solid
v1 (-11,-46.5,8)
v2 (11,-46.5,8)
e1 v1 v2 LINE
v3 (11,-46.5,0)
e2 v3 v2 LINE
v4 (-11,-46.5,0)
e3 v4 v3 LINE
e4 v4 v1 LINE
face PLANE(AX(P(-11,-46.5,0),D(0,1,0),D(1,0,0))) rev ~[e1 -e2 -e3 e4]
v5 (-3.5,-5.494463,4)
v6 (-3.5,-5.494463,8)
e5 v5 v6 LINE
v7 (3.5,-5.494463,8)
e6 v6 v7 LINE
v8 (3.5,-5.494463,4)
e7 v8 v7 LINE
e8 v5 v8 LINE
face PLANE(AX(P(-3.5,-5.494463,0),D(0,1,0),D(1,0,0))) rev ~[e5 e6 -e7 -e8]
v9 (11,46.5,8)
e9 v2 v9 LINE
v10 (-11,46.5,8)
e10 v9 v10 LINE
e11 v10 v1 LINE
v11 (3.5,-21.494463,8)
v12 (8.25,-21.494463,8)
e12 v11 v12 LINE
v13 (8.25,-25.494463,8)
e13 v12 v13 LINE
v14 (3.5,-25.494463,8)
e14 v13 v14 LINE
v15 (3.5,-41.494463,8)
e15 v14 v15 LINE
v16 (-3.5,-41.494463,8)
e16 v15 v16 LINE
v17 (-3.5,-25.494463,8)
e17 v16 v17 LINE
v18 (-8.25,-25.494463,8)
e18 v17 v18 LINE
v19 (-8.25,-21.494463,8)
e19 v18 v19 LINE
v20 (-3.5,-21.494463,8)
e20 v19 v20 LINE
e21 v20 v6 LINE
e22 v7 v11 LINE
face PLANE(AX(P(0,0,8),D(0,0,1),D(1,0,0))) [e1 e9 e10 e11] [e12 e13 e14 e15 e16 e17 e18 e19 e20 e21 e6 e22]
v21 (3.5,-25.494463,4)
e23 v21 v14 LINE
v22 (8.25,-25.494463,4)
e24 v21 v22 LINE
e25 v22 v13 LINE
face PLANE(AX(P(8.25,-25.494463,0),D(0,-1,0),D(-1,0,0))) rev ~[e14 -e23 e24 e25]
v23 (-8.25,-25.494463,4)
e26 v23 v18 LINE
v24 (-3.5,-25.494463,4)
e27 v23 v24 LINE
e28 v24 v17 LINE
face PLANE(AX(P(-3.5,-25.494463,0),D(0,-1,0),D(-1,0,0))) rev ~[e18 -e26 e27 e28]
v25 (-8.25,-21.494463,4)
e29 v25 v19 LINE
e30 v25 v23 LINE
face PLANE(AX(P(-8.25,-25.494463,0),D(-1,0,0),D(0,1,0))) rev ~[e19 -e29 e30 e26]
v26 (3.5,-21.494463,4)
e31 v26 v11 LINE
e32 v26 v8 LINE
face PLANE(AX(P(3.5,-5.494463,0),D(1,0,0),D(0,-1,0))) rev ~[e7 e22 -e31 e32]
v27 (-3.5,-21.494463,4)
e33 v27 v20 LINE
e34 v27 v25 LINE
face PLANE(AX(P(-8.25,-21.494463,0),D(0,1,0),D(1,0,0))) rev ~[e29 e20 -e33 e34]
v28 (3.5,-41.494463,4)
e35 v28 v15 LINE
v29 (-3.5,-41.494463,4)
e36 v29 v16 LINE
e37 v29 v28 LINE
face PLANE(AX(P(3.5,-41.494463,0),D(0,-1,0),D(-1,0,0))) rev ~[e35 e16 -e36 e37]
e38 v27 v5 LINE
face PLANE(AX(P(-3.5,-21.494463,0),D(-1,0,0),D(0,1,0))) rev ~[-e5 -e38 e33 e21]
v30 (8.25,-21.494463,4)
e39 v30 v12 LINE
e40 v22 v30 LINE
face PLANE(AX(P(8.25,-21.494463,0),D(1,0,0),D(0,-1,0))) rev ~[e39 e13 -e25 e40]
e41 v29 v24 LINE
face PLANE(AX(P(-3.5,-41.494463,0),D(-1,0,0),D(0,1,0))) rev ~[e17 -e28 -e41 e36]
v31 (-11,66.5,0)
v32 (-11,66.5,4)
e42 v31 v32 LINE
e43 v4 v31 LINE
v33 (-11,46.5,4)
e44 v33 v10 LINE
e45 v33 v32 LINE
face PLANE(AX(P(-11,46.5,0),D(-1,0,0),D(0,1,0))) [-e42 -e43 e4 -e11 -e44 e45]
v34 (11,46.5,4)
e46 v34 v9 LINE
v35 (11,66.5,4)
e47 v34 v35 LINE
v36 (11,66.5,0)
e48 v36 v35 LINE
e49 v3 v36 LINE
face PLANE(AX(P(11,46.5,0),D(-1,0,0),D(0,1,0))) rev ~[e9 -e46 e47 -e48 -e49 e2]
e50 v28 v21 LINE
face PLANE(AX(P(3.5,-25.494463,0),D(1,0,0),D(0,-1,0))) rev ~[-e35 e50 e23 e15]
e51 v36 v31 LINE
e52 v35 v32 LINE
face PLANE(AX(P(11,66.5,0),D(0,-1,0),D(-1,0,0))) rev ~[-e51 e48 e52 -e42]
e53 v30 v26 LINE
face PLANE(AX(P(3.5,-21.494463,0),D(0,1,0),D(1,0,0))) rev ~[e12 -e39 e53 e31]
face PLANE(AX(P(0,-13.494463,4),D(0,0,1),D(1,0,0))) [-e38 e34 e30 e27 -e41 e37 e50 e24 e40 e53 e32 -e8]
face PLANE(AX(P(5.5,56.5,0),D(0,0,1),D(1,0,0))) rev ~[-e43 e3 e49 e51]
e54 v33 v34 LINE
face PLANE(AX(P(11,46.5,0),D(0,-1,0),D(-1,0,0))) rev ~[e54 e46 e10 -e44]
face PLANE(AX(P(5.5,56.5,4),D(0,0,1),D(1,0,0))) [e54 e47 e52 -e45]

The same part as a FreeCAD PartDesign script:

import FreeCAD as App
import Part
import Sketcher
from FreeCAD import Vector

doc = App.newDocument("Part")
body = doc.addObject("PartDesign::Body", "Body")

# Sketch on XY plane
sketch1 = body.newObject("Sketcher::SketchObject", "Sketch")
sketch1.AttachmentSupport = (doc.getObject("XY_Plane"), [""])
sketch1.MapMode = "FlatFace"
sketch1.addGeometry([
    Part.LineSegment(Vector(11, -46.5, 0), Vector(11, 46.5, 0)),  # 0
    Part.LineSegment(Vector(11, 46.5, 0), Vector(-11, 46.5, 0)),  # 1
    Part.LineSegment(Vector(-11, 46.5, 0), Vector(-11, -46.5, 0)),  # 2
    Part.LineSegment(Vector(-11, -46.5, 0), Vector(11, -46.5, 0)),  # 3
    Part.LineSegment(Vector(3.5, -21.5, 0), Vector(8.2, -21.5, 0)),  # 4
    Part.LineSegment(Vector(8.2, -21.5, 0), Vector(8.2, -25.5, 0)),  # 5
    Part.LineSegment(Vector(8.2, -25.5, 0), Vector(3.5, -25.5, 0)),  # 6
    Part.LineSegment(Vector(3.5, -25.5, 0), Vector(3.5, -41.5, 0)),  # 7
    Part.LineSegment(Vector(3.5, -41.5, 0), Vector(-3.5, -41.5, 0)),  # 8
    Part.LineSegment(Vector(-3.5, -41.5, 0), Vector(-3.5, -25.5, 0)),  # 9
    Part.LineSegment(Vector(-3.5, -25.5, 0), Vector(-8.2, -25.5, 0)),  # 10
    Part.LineSegment(Vector(-8.2, -25.5, 0), Vector(-8.2, -21.5, 0)),  # 11
    Part.LineSegment(Vector(-8.2, -21.5, 0), Vector(-3.5, -21.5, 0)),  # 12
    Part.LineSegment(Vector(-3.5, -21.5, 0), Vector(-3.5, -5.5, 0)),  # 13
    Part.LineSegment(Vector(-3.5, -5.5, 0), Vector(3.5, -5.5, 0)),  # 14
    Part.LineSegment(Vector(3.5, -5.5, 0), Vector(3.5, -21.5, 0)),  # 15
], False)
sketch1.addConstraint([
    Sketcher.Constraint("Coincident", 0, 2, 1, 1),
    Sketcher.Constraint("Coincident", 1, 2, 2, 1),
    Sketcher.Constraint("Coincident", 2, 2, 3, 1),
    Sketcher.Constraint("Coincident", 3, 2, 0, 1),
    Sketcher.Constraint("Coincident", 4, 2, 5, 1),
    Sketcher.Constraint("Coincident", 5, 2, 6, 1),
    Sketcher.Constraint("Coincident", 6, 2, 7, 1),
    Sketcher.Constraint("Coincident", 7, 2, 8, 1),
    Sketcher.Constraint("Coincident", 8, 2, 9, 1),
    Sketcher.Constraint("Coincident", 9, 2, 10, 1),
    Sketcher.Constraint("Coincident", 10, 2, 11, 1),
    Sketcher.Constraint("Coincident", 11, 2, 12, 1),
    Sketcher.Constraint("Coincident", 12, 2, 13, 1),
    Sketcher.Constraint("Coincident", 13, 2, 14, 1),
    Sketcher.Constraint("Coincident", 14, 2, 15, 1),
    Sketcher.Constraint("Coincident", 15, 2, 4, 1),
    Sketcher.Constraint("Vertical", 0),
    Sketcher.Constraint("Horizontal", 1),
    Sketcher.Constraint("Vertical", 2),
    Sketcher.Constraint("Horizontal", 3),
    Sketcher.Constraint("Horizontal", 4),
    Sketcher.Constraint("Vertical", 5),
    Sketcher.Constraint("Horizontal", 6),
    Sketcher.Constraint("Vertical", 7),
    Sketcher.Constraint("Horizontal", 8),
    Sketcher.Constraint("Vertical", 9),
    Sketcher.Constraint("Horizontal", 10),
    Sketcher.Constraint("Vertical", 11),
    Sketcher.Constraint("Horizontal", 12),
    Sketcher.Constraint("Vertical", 13),
    Sketcher.Constraint("Horizontal", 14),
    Sketcher.Constraint("Vertical", 15),
    Sketcher.Constraint("Symmetric", 0, 2, 2, 2, -1, 1),
    Sketcher.Constraint("Symmetric", 6, 2, 9, 2, -2),
    Sketcher.Constraint("Symmetric", 4, 2, 11, 2, -2),
    Sketcher.Constraint("Vertical", 9, 2, 12, 2),
    Sketcher.Constraint("Vertical", 7, 2, 14, 2),
    Sketcher.Constraint("Equal", 9, 13),
    Sketcher.Constraint("DistanceX", 1, 2, 1, 1, 22.0),
    Sketcher.Constraint("DistanceX", 8, 2, 8, 1, 7.0),
    Sketcher.Constraint("DistanceY", 0, 1, 0, 2, 93.0),
    Sketcher.Constraint("DistanceY", 5, 2, 5, 1, 4.0),
    Sketcher.Constraint("DistanceY", 7, 2, 7, 1, 16.0),
    Sketcher.Constraint("DistanceX", 4, 1, 4, 2, 4.75),
    Sketcher.Constraint("DistanceY", 4, 2, -1, 1, 21.494463),
])
pad1 = body.newObject("PartDesign::Pad", "Pad")
pad1.Profile = sketch1
pad1.Length = 8

# Sketch on XY plane
sketch2 = body.newObject("Sketcher::SketchObject", "Sketch001")
sketch2.AttachmentSupport = (doc.getObject("XY_Plane"), [""])
sketch2.MapMode = "FlatFace"
sketch2.addGeometry([
    Part.LineSegment(Vector(11, 46.5, 0), Vector(11, 66.5, 0)),  # 0
    Part.LineSegment(Vector(11, 66.5, 0), Vector(-11, 66.5, 0)),  # 1
    Part.LineSegment(Vector(-11, 66.5, 0), Vector(-11, 46.5, 0)),  # 2
    Part.LineSegment(Vector(-11, 46.5, 0), Vector(11, 46.5, 0)),  # 3
    Part.LineSegment(Vector(-3.5, -5.5, 0), Vector(-3.5, -21.5, 0)),  # 4
    Part.LineSegment(Vector(-3.5, -21.5, 0), Vector(-8.2, -21.5, 0)),  # 5
    Part.LineSegment(Vector(-8.2, -21.5, 0), Vector(-8.2, -25.5, 0)),  # 6
    Part.LineSegment(Vector(-8.2, -25.5, 0), Vector(-3.5, -25.5, 0)),  # 7
    Part.LineSegment(Vector(-3.5, -25.5, 0), Vector(-3.5, -41.5, 0)),  # 8
    Part.LineSegment(Vector(-3.5, -41.5, 0), Vector(3.5, -41.5, 0)),  # 9
    Part.LineSegment(Vector(3.5, -41.5, 0), Vector(3.5, -25.5, 0)),  # 10
    Part.LineSegment(Vector(3.5, -25.5, 0), Vector(8.2, -25.5, 0)),  # 11
    Part.LineSegment(Vector(8.2, -25.5, 0), Vector(8.2, -21.5, 0)),  # 12
    Part.LineSegment(Vector(8.2, -21.5, 0), Vector(3.5, -21.5, 0)),  # 13
    Part.LineSegment(Vector(3.5, -21.5, 0), Vector(3.5, -5.5, 0)),  # 14
    Part.LineSegment(Vector(3.5, -5.5, 0), Vector(-3.5, -5.5, 0)),  # 15
], False)
sketch2.addConstraint([
    Sketcher.Constraint("Coincident", 0, 2, 1, 1),
    Sketcher.Constraint("Coincident", 1, 2, 2, 1),
    Sketcher.Constraint("Coincident", 2, 2, 3, 1),
    Sketcher.Constraint("Coincident", 3, 2, 0, 1),
    Sketcher.Constraint("Coincident", 4, 2, 5, 1),
    Sketcher.Constraint("Coincident", 5, 2, 6, 1),
    Sketcher.Constraint("Coincident", 6, 2, 7, 1),
    Sketcher.Constraint("Coincident", 7, 2, 8, 1),
    Sketcher.Constraint("Coincident", 8, 2, 9, 1),
    Sketcher.Constraint("Coincident", 9, 2, 10, 1),
    Sketcher.Constraint("Coincident", 10, 2, 11, 1),
    Sketcher.Constraint("Coincident", 11, 2, 12, 1),
    Sketcher.Constraint("Coincident", 12, 2, 13, 1),
    Sketcher.Constraint("Coincident", 13, 2, 14, 1),
    Sketcher.Constraint("Coincident", 14, 2, 15, 1),
    Sketcher.Constraint("Coincident", 15, 2, 4, 1),
    Sketcher.Constraint("Vertical", 0),
    Sketcher.Constraint("Horizontal", 1),
    Sketcher.Constraint("Vertical", 2),
    Sketcher.Constraint("Horizontal", 3),
    Sketcher.Constraint("Vertical", 4),
    Sketcher.Constraint("Horizontal", 5),
    Sketcher.Constraint("Vertical", 6),
    Sketcher.Constraint("Horizontal", 7),
    Sketcher.Constraint("Vertical", 8),
    Sketcher.Constraint("Horizontal", 9),
    Sketcher.Constraint("Vertical", 10),
    Sketcher.Constraint("Horizontal", 11),
    Sketcher.Constraint("Vertical", 12),
    Sketcher.Constraint("Horizontal", 13),
    Sketcher.Constraint("Vertical", 14),
    Sketcher.Constraint("Horizontal", 15),
    Sketcher.Constraint("Symmetric", 7, 2, 10, 2, -2),
    Sketcher.Constraint("Symmetric", 5, 2, 12, 2, -2),
    Sketcher.Constraint("Vertical", 4, 2, 7, 2),
    Sketcher.Constraint("Vertical", 10, 2, 13, 2),
    Sketcher.Constraint("Equal", 4, 8),
    Sketcher.Constraint("DistanceX", 1, 2, 1, 1, 22.0),
    Sketcher.Constraint("DistanceX", 9, 1, 9, 2, 7.0),
    Sketcher.Constraint("DistanceY", 0, 1, 0, 2, 20.0),
    Sketcher.Constraint("DistanceY", 4, 2, 4, 1, 16.0),
    Sketcher.Constraint("DistanceY", 6, 2, 6, 1, 4.0),
    Sketcher.Constraint("DistanceX", -1, 1, 0, 2, 11.0),
    Sketcher.Constraint("DistanceX", 5, 2, 5, 1, 4.75),
    Sketcher.Constraint("DistanceY", -1, 1, 0, 2, 66.5),
    Sketcher.Constraint("DistanceY", 4, 2, -1, 1, 21.494463),
])
pad2 = body.newObject("PartDesign::Pad", "Pad001")
pad2.Profile = sketch2
pad2.Length = 4

doc.recompute()
